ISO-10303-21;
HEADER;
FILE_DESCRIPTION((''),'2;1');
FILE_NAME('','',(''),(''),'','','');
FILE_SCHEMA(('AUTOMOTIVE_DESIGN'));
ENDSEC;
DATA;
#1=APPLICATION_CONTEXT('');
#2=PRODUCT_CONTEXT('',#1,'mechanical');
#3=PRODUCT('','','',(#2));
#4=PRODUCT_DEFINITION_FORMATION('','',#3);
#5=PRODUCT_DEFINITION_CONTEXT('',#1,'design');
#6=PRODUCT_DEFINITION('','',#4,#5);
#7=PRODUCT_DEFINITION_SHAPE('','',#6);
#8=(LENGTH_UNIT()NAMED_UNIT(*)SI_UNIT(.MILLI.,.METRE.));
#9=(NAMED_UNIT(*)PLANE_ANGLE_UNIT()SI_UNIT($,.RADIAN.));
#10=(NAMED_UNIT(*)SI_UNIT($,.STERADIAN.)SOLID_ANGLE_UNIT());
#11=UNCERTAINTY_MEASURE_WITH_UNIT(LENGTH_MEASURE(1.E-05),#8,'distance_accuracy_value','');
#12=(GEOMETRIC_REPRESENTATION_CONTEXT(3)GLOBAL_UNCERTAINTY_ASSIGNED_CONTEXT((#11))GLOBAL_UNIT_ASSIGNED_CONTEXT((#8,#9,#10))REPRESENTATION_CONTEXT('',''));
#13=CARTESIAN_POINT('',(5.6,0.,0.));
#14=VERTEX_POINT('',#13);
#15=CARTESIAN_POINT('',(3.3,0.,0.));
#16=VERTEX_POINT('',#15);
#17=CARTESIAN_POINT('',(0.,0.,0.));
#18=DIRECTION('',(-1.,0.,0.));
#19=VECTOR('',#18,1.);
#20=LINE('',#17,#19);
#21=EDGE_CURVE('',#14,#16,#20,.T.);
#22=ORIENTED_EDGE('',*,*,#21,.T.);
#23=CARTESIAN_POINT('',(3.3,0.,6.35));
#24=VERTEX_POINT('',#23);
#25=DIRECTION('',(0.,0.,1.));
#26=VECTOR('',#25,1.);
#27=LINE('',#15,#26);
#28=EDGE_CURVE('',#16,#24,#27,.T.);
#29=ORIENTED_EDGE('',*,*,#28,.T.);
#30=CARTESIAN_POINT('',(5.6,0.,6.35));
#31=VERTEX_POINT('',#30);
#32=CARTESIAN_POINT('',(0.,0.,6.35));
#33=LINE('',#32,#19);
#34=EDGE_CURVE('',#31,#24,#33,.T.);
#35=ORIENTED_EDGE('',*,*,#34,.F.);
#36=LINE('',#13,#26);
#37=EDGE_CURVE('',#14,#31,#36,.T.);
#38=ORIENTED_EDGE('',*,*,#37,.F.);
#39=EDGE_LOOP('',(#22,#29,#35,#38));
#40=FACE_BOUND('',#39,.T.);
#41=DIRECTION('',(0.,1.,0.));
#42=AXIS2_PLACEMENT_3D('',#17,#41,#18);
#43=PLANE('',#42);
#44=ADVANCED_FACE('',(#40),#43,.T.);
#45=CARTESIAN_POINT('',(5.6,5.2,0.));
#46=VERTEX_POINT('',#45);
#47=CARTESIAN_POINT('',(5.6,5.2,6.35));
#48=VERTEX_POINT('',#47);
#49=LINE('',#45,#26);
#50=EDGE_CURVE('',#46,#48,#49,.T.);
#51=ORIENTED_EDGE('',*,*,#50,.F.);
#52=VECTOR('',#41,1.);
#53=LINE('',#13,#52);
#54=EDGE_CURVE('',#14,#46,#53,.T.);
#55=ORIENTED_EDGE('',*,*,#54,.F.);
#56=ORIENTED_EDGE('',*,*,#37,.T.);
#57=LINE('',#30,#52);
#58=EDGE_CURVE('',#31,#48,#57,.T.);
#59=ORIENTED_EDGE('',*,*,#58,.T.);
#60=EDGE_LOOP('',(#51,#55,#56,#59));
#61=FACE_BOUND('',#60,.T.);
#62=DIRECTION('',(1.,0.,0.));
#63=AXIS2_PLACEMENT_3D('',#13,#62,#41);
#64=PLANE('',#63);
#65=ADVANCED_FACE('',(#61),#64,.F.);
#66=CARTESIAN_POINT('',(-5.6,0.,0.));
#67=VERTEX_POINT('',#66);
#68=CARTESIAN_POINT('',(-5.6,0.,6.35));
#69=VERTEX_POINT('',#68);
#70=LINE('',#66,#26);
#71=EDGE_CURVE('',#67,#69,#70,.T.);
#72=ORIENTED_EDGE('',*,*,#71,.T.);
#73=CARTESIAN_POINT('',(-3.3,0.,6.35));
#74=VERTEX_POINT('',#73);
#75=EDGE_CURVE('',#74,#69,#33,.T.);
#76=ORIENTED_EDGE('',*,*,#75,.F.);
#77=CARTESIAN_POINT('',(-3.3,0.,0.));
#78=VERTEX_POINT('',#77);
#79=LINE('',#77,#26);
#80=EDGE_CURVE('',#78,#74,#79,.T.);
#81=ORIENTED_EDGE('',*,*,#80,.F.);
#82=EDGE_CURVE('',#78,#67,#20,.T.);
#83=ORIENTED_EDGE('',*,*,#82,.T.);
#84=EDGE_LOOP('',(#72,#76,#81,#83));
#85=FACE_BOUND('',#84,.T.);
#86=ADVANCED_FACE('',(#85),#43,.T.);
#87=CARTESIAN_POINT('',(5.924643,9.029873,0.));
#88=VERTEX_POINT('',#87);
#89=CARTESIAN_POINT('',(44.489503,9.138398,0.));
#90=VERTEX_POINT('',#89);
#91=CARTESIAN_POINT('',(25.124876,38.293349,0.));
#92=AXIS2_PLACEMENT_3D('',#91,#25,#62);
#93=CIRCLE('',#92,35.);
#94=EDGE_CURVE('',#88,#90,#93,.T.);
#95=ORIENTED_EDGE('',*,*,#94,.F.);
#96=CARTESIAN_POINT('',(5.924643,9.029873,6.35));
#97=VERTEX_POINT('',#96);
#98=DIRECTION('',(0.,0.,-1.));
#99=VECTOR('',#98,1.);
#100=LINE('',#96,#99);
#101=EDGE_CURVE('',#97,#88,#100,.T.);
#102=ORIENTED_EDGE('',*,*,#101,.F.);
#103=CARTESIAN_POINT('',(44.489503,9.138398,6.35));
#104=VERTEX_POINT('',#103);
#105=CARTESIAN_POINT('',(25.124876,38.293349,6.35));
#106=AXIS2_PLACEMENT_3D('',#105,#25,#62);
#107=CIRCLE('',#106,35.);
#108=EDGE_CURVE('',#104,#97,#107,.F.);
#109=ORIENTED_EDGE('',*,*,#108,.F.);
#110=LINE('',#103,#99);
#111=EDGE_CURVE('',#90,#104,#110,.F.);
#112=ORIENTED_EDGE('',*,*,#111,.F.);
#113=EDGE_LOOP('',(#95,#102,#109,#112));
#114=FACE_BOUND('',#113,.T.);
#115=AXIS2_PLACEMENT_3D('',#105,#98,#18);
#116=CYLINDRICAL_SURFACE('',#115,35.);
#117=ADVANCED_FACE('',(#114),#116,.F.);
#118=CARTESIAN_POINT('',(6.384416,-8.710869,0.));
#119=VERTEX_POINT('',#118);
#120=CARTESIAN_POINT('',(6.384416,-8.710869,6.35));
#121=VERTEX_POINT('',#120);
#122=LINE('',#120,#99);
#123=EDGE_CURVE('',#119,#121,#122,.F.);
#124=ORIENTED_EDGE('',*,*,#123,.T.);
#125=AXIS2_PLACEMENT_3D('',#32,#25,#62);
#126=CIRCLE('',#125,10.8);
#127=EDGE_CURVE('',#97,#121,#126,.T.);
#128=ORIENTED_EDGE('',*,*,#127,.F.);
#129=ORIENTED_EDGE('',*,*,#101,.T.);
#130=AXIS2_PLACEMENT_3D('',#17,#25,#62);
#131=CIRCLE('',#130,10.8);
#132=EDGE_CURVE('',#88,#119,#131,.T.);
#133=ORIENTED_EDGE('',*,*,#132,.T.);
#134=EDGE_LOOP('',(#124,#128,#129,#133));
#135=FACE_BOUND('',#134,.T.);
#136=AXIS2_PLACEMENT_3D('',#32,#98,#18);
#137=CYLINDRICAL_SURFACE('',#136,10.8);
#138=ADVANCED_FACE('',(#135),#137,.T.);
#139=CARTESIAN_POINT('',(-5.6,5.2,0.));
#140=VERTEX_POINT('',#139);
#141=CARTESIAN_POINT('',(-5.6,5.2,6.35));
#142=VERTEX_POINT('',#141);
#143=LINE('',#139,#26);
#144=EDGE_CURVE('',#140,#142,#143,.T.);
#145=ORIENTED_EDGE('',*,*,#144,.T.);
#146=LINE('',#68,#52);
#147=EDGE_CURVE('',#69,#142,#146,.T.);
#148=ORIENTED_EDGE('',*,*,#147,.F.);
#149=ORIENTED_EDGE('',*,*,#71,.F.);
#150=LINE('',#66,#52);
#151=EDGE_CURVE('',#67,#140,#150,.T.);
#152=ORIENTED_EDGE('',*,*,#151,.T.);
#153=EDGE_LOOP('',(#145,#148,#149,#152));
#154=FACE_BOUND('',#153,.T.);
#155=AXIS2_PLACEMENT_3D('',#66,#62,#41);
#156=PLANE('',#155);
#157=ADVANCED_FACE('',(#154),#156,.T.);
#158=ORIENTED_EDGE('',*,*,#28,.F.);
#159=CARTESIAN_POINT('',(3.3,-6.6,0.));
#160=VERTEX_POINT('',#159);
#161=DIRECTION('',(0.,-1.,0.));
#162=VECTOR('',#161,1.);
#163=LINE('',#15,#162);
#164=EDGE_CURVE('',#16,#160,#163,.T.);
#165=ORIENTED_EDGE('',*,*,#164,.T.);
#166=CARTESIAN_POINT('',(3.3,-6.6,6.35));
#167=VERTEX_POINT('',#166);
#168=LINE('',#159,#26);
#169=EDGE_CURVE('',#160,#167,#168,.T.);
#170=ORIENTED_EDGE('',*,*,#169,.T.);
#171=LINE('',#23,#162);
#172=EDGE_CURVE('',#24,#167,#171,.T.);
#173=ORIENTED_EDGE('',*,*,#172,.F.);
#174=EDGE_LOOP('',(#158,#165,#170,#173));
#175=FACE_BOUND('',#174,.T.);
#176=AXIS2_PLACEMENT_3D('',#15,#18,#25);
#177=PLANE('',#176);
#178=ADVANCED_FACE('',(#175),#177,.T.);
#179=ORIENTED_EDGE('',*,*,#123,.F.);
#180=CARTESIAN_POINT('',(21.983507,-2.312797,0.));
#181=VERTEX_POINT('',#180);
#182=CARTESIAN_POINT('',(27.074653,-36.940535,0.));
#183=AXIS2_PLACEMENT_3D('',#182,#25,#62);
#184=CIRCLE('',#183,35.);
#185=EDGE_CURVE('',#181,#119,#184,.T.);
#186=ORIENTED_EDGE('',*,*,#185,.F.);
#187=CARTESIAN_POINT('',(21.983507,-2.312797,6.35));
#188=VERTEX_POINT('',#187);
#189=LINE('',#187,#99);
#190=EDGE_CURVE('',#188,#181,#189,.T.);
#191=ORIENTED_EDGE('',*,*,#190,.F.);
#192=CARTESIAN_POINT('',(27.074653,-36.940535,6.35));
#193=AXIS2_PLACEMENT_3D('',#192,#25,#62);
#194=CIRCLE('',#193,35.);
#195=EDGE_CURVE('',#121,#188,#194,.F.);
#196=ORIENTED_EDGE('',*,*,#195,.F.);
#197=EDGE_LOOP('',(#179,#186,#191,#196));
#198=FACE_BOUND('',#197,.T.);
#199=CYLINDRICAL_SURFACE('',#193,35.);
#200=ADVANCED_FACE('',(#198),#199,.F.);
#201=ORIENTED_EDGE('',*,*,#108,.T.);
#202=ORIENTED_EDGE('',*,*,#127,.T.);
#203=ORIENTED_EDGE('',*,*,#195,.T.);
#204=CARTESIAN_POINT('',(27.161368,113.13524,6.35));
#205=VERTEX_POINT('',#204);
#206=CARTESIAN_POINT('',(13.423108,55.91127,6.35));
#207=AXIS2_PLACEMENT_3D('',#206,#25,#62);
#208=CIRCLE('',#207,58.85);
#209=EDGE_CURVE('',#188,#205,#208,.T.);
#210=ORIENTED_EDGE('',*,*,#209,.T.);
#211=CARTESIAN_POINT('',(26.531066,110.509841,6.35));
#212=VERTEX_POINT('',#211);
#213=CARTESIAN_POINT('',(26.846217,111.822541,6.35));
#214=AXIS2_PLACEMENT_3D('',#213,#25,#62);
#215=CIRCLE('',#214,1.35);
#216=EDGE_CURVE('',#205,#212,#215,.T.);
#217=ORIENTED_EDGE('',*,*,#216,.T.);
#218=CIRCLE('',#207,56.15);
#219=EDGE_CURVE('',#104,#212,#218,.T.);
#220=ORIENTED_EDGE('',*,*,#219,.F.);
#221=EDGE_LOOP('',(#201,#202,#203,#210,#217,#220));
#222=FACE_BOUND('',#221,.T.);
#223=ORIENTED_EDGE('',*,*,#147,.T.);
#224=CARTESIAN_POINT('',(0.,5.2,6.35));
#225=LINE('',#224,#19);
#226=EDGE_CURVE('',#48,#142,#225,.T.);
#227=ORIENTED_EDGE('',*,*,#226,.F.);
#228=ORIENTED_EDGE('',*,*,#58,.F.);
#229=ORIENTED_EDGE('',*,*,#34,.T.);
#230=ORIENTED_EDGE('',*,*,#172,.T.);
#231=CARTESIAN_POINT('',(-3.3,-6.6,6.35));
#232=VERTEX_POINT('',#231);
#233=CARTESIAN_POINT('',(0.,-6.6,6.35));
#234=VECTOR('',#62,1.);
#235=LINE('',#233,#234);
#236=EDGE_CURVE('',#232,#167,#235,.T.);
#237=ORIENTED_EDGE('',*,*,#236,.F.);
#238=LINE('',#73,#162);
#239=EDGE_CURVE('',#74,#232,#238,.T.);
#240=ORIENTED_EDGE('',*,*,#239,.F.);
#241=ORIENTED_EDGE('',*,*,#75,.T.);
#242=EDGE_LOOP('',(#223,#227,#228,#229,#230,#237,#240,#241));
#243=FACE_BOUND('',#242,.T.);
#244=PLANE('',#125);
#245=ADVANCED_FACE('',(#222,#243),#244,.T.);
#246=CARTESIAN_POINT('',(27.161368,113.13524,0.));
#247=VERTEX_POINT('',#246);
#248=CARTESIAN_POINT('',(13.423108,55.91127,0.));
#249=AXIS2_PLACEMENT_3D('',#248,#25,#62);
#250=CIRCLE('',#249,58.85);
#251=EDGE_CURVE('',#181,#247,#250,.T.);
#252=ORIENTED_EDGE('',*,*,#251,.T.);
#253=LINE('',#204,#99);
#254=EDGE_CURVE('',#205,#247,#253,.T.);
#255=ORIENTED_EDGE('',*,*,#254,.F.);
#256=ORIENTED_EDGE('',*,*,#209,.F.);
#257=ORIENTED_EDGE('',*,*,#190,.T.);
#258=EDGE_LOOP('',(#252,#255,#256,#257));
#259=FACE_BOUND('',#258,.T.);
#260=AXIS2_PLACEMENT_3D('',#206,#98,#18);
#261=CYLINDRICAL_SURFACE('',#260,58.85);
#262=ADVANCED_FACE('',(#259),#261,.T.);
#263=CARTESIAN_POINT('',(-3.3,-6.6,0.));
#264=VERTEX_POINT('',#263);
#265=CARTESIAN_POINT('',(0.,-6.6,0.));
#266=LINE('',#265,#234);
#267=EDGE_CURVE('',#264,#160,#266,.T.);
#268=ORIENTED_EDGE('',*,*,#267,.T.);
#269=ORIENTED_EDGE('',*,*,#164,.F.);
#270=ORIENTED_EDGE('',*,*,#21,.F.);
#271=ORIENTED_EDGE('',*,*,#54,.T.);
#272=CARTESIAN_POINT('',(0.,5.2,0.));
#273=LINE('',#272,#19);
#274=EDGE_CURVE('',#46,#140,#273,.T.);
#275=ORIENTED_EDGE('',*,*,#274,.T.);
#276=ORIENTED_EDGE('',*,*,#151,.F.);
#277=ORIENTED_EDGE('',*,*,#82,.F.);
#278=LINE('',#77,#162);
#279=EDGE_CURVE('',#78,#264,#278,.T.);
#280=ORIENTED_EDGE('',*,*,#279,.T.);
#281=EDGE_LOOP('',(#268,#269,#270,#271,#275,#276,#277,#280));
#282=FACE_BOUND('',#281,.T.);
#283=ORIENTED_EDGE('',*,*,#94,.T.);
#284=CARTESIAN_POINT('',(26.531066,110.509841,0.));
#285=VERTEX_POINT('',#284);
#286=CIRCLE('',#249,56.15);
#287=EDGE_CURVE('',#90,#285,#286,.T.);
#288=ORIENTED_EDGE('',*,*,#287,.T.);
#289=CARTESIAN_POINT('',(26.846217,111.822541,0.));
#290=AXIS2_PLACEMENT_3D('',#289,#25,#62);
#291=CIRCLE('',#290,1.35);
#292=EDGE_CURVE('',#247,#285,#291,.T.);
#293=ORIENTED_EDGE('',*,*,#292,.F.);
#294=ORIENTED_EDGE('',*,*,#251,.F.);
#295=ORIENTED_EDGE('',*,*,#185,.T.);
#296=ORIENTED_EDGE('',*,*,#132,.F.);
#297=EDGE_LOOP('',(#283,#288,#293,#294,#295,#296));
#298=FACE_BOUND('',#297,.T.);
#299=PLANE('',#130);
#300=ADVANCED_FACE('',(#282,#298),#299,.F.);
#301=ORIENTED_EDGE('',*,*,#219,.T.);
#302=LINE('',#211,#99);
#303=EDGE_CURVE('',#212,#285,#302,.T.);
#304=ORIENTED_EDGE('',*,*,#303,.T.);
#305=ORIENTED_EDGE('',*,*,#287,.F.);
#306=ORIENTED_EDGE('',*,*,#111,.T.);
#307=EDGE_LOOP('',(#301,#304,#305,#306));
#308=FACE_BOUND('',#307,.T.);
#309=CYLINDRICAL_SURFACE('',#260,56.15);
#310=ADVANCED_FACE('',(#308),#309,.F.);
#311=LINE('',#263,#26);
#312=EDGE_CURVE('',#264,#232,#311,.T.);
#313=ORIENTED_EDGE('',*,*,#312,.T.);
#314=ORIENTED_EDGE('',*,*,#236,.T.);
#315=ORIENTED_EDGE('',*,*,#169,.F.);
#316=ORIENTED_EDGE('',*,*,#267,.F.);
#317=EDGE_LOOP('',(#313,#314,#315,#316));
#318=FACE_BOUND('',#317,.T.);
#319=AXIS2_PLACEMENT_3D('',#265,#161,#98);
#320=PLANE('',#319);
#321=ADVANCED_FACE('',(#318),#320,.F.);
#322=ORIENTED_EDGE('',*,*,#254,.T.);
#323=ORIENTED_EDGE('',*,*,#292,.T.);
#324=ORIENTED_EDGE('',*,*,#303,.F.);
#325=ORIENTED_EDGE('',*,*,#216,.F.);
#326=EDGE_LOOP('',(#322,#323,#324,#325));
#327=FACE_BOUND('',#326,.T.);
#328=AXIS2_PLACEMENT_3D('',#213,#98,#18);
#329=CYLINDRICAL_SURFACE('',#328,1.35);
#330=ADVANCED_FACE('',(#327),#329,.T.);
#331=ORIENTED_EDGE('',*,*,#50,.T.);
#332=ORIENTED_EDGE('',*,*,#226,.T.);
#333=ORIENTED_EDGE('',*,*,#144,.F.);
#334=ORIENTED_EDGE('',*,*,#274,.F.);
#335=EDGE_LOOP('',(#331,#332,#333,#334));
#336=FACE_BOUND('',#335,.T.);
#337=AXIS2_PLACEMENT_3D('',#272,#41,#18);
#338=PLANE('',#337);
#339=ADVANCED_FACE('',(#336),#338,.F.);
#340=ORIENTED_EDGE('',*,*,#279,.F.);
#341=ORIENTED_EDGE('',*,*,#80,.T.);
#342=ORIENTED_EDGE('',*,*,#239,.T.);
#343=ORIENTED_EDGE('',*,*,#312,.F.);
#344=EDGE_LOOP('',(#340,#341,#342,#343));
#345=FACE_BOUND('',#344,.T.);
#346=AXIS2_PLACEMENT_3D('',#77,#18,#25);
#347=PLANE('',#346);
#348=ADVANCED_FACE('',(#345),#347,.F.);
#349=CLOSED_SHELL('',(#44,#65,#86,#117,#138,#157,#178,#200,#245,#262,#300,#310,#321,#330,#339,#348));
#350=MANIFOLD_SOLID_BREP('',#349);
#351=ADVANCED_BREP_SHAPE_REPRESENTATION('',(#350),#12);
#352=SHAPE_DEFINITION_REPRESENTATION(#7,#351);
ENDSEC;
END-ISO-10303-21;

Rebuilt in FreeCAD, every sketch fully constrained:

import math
import FreeCAD as App
import Part
import Sketcher

V = App.Vector


def edges_at(feature, points):
    """Names of the edges that pass closest to the given points."""
    edges = feature.Shape.Edges
    near = lambda p: min(range(len(edges)), key=lambda i: edges[i].distToShape(Part.Vertex(*p))[0])
    return sorted({f"Edge{near(p) + 1}" for p in points})

doc = App.newDocument("Part")
params = doc.addObject("Spreadsheet::Sheet", "Params")
for row, (alias, value) in enumerate([
    ("sketch1_radius", "10.8 mm"),
    ("sketch1_radius2", "58.85 mm"),
    ("sketch1_radius3", "1.35 mm"),
    ("pad1_length", "6.35 mm"),
    ("fillet_radius", "35 mm"),
    ("sketch2_width", "6.6 mm"),
    ("sketch2_width2", "2.3 mm"),
    ("sketch2_height", "5.2 mm"),
], start=1):
    params.set(f"A{row}", alias)
    params.set(f"B{row}", "=" + value)
    params.setAlias(f"B{row}", alias)

body = doc.addObject("PartDesign::Body", "Body")

# Sketch on XY plane
sketch1 = doc.addObject("Sketcher::SketchObject", "Sketch")
body.addObject(sketch1)
sketch1.AttachmentSupport = (doc.XY_Plane, [""])
sketch1.MapMode = "FlatFace"
sketch1.addGeometry([
    Part.ArcOfCircle(Part.Circle(V(0, 0, 0), V(0, 0, 1), 10.8), math.radians(-0.940952), math.radians(344.634444)),
    Part.ArcOfCircle(Part.Circle(V(13.423108, 55.91127, 0), V(0, 0, 1), 58.85), math.radians(-92.930963), math.radians(76.5)),
    Part.ArcOfCircle(Part.Circle(V(26.846217, 111.822541, 0), V(0, 0, 1), 1.35), math.radians(76.5), math.radians(256.5)),
    Part.ArcOfCircle(Part.Circle(V(13.423108, 55.91127, 0), V(0, 0, 1), 56.15), math.radians(-92.679097), math.radians(76.5)),
], False)
sketch1.addConstraint([
    Sketcher.Constraint("Coincident", 0, 2, 1, 1),
    Sketcher.Constraint("Coincident", 1, 2, 2, 1),
    Sketcher.Constraint("Coincident", 2, 2, 3, 2),
    Sketcher.Constraint("Coincident", 3, 1, 0, 1),
    Sketcher.Constraint("Coincident", 0, 3, -1, 1),
    Sketcher.Constraint("Coincident", 3, 3, 1, 3),
    Sketcher.Constraint("Radius", 0, 10.8),
    Sketcher.Constraint("Radius", 1, 58.85),
    Sketcher.Constraint("Radius", 2, 1.35),
    Sketcher.Constraint("DistanceY", 2, 3, 1, 2, 1.312699),
    Sketcher.Constraint("DistanceY", 2, 2, 2, 3, 1.312699),
    Sketcher.Constraint("DistanceY", 3, 1, 2, 2, 110.687199),
    Sketcher.Constraint("DistanceX", -1, 1, 1, 3, 13.423108),
    Sketcher.Constraint("DistanceY", -1, 1, 1, 3, 55.91127),
])
sketch1.setExpression("Constraints[6]", "Params.sketch1_radius")
sketch1.setExpression("Constraints[7]", "Params.sketch1_radius2")
sketch1.setExpression("Constraints[8]", "Params.sketch1_radius3")
pad1 = doc.addObject("PartDesign::Pad", "Pad")
body.addObject(pad1)
pad1.Profile = sketch1
pad1.setExpression("Length", "Params.pad1_length")
doc.recompute()

fillet = doc.addObject("PartDesign::Fillet", "Fillet")
body.addObject(fillet)
fillet.Base = (pad1, edges_at(pad1, [(10.799, -0.177, 3.175), (10.414, -2.862, 3.175)]))
fillet.setExpression("Radius", "Params.fillet_radius")

# Sketch on XY plane
sketch2 = doc.addObject("Sketcher::SketchObject", "Sketch001")
body.addObject(sketch2)
sketch2.AttachmentSupport = (doc.XY_Plane, [""])
sketch2.MapMode = "FlatFace"
sketch2.AttachmentOffset = App.Placement(V(0, 0, 6.35), App.Rotation())
sketch2.addGeometry([
    Part.LineSegment(V(-3.3, 0, 0), V(-3.3, -6.6, 0)),  # 0
    Part.LineSegment(V(-3.3, -6.6, 0), V(3.3, -6.6, 0)),  # 1
    Part.LineSegment(V(3.3, -6.6, 0), V(3.3, 0, 0)),  # 2
    Part.LineSegment(V(3.3, 0, 0), V(5.6, 0, 0)),  # 3
    Part.LineSegment(V(5.6, 0, 0), V(5.6, 5.2, 0)),  # 4
    Part.LineSegment(V(5.6, 5.2, 0), V(-5.6, 5.2, 0)),  # 5
    Part.LineSegment(V(-5.6, 5.2, 0), V(-5.6, 0, 0)),  # 6
    Part.LineSegment(V(-5.6, 0, 0), V(-3.3, 0, 0)),  # 7
], False)
sketch2.addConstraint([
    Sketcher.Constraint("Coincident", 0, 2, 1, 1),
    Sketcher.Constraint("Coincident", 1, 2, 2, 1),
    Sketcher.Constraint("Coincident", 2, 2, 3, 1),
    Sketcher.Constraint("Coincident", 3, 2, 4, 1),
    Sketcher.Constraint("Coincident", 4, 2, 5, 1),
    Sketcher.Constraint("Coincident", 5, 2, 6, 1),
    Sketcher.Constraint("Coincident", 6, 2, 7, 1),
    Sketcher.Constraint("Coincident", 7, 2, 0, 1),
    Sketcher.Constraint("Vertical", 0),
    Sketcher.Constraint("Horizontal", 1),
    Sketcher.Constraint("Vertical", 2),
    Sketcher.Constraint("Horizontal", 3),
    Sketcher.Constraint("Vertical", 4),
    Sketcher.Constraint("Horizontal", 5),
    Sketcher.Constraint("Vertical", 6),
    Sketcher.Constraint("Horizontal", 7),
    Sketcher.Constraint("Symmetric", 3, 2, 6, 2, -1, 1),
    Sketcher.Constraint("Symmetric", 2, 2, 7, 2, -2),
    Sketcher.Constraint("Equal", 1, 0),
    Sketcher.Constraint("DistanceX", 1, 1, 1, 2, 6.6),
    Sketcher.Constraint("DistanceX", 3, 1, 3, 2, 2.3),
    Sketcher.Constraint("DistanceY", 4, 1, 4, 2, 5.2),
])
sketch2.setExpression("Constraints[19]", "Params.sketch2_width")
sketch2.setExpression("Constraints[20]", "Params.sketch2_width2")
sketch2.setExpression("Constraints[21]", "Params.sketch2_height")
pocket1 = doc.addObject("PartDesign::Pocket", "Pocket")
body.addObject(pocket1)
pocket1.Profile = sketch2
pocket1.Type = "ThroughAll"

doc.recompute()
